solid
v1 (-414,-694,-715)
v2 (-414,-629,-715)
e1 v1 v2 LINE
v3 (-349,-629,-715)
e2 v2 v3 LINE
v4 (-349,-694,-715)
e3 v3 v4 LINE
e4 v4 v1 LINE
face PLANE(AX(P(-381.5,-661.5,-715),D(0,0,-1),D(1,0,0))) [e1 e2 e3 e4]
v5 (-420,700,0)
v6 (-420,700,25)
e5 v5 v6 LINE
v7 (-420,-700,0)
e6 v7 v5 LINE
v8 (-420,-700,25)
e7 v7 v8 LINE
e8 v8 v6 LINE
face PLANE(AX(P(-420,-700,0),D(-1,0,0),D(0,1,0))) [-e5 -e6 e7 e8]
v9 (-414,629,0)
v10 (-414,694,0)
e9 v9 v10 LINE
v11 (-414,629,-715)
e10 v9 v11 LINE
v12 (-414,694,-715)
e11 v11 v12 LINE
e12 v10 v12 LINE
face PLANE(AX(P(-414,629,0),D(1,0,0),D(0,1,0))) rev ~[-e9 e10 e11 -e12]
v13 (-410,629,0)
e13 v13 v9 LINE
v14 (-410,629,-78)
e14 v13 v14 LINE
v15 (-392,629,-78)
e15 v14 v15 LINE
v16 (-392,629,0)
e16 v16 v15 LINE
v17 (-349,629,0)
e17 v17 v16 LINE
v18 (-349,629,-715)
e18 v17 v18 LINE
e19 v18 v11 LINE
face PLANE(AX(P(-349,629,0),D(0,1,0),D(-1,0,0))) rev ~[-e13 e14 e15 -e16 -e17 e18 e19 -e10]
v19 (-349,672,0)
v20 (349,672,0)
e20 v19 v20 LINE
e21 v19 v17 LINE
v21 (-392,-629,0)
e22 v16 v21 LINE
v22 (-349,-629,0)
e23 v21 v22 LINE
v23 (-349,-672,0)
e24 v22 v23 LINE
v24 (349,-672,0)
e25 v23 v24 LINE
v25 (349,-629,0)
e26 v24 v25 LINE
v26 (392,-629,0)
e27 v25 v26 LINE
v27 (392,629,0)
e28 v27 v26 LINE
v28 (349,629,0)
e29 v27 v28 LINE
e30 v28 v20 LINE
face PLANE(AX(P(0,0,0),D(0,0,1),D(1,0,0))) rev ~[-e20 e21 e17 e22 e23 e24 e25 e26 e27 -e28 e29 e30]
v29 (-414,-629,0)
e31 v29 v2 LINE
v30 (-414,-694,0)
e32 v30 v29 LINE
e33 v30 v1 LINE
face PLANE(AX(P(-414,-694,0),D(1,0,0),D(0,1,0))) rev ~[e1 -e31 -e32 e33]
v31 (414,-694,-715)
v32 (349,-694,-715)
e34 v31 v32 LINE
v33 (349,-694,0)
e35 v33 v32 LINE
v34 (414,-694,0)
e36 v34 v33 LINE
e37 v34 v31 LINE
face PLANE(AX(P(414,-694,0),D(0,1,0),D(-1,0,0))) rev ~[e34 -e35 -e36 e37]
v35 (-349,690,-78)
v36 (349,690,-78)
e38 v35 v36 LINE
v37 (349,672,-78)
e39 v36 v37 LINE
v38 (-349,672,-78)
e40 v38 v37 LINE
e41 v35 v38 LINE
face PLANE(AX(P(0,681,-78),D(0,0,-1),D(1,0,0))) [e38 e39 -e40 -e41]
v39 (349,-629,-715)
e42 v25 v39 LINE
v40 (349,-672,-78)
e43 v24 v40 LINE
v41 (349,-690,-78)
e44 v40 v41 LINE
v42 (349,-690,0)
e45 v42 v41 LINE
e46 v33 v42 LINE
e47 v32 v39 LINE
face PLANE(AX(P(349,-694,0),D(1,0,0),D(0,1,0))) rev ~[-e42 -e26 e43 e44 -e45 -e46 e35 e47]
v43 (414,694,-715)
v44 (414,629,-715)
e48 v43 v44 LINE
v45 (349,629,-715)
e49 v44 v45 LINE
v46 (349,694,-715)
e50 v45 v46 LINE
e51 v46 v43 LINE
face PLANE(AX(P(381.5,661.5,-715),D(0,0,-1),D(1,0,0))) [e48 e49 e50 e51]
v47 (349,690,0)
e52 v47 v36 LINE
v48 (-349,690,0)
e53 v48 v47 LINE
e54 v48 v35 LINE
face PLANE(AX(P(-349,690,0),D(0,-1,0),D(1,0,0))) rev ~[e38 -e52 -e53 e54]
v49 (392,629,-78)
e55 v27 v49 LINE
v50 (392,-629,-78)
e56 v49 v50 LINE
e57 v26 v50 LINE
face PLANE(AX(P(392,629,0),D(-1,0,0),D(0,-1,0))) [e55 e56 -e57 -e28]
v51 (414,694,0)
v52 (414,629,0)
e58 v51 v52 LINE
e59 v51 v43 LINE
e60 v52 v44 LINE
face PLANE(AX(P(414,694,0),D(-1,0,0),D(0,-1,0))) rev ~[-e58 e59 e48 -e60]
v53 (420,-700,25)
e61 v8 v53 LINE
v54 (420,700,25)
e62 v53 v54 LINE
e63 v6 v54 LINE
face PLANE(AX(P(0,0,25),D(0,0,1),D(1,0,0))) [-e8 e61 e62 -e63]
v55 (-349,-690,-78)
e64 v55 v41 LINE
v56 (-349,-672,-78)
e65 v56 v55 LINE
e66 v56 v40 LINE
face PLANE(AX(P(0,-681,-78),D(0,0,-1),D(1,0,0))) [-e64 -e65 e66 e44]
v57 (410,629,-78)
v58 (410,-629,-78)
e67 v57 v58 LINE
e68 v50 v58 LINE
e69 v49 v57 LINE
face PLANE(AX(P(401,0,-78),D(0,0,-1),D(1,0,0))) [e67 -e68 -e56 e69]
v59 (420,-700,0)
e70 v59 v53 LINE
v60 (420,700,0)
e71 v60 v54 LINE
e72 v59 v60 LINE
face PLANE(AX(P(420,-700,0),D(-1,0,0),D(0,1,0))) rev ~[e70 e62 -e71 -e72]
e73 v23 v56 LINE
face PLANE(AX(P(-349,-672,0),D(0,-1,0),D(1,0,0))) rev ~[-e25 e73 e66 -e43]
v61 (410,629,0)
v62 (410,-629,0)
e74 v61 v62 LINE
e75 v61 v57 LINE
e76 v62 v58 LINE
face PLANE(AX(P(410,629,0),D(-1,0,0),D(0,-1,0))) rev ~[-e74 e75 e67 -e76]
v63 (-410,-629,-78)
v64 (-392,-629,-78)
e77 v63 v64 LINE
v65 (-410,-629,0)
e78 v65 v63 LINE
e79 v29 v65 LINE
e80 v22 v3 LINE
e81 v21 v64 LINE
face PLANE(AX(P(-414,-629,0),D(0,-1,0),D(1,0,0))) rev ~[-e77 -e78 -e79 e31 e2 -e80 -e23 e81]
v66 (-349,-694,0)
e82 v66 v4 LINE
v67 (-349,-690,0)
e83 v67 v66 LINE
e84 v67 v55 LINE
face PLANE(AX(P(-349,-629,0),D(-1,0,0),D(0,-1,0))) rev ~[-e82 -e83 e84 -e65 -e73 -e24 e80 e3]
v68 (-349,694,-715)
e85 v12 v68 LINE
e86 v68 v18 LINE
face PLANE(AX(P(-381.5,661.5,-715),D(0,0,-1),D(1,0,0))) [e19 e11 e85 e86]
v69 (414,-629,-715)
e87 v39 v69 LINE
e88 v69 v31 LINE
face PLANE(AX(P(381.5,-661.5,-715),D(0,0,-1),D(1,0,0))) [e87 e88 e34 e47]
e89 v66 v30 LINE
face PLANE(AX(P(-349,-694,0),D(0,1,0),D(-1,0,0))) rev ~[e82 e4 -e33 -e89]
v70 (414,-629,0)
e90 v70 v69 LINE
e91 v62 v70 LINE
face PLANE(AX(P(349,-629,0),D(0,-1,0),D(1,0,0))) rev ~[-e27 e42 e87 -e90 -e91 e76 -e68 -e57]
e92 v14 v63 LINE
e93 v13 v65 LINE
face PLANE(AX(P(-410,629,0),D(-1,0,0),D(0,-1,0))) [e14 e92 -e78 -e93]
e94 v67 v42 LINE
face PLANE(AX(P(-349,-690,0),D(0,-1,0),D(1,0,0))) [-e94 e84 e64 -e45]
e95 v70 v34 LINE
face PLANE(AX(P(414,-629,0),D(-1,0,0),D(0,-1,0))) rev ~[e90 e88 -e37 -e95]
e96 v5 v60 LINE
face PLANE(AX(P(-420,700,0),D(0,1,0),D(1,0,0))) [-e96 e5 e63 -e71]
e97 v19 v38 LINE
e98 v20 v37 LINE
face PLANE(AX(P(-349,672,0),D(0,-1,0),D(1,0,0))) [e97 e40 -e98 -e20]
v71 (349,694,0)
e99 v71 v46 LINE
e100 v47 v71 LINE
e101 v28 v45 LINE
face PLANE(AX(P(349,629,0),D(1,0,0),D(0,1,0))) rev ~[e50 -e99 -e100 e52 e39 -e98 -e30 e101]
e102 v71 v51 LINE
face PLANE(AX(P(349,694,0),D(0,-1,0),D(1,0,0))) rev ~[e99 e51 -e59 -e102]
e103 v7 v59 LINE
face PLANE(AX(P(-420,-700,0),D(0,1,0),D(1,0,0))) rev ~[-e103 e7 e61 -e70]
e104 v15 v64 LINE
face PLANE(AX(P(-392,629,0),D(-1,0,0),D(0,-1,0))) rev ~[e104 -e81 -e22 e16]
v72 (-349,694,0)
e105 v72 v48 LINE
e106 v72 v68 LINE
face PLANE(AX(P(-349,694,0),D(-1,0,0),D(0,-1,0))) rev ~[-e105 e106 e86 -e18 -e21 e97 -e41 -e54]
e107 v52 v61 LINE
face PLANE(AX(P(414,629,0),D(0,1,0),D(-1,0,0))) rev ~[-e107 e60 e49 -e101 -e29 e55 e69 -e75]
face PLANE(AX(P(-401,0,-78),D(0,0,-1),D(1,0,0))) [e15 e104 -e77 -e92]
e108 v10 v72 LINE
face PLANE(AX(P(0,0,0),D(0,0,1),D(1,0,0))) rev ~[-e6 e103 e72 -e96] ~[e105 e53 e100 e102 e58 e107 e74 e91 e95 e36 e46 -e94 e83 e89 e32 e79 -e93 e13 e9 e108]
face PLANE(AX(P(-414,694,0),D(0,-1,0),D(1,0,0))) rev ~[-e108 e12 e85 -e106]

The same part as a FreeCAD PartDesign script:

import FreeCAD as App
import Part
import Sketcher

V = App.Vector


def add_polygon(sketch, points):
    """Adds a closed chain of lines whose ends are joined by coincident constraints."""
    first, n = sketch.GeometryCount, len(points)
    for a, b in zip(points, points[1:] + points[:1]):
        sketch.addGeometry(Part.LineSegment(App.Vector(*a, 0), App.Vector(*b, 0)), False)
    for i in range(n):
        sketch.addConstraint(Sketcher.Constraint("Coincident", first + i, 2, first + (i + 1) % n, 1))

doc = App.newDocument("Part")
body = doc.addObject("PartDesign::Body", "Body")

# Sketch on XY plane
sketch1 = body.newObject("Sketcher::SketchObject", "Sketch")
sketch1.AttachmentSupport = (doc.getObject("XY_Plane"), [""])
sketch1.MapMode = "FlatFace"
add_polygon(sketch1, [(-420, 700), (-420, -700), (420, -700), (420, 700)])  # lines 0-3
sketch1.addConstraint([
    Sketcher.Constraint("Vertical", 0),
    Sketcher.Constraint("Horizontal", 1),
    Sketcher.Constraint("Vertical", 2),
    Sketcher.Constraint("Horizontal", 3),
    Sketcher.Constraint("Symmetric", 0, 2, 2, 2, -1, 1),
    Sketcher.Constraint("DistanceX", 1, 1, 1, 2, 840.0),
    Sketcher.Constraint("DistanceY", 0, 2, 0, 1, 1400.0),
])
pad1 = body.newObject("PartDesign::Pad", "Pad")
pad1.Profile = sketch1
pad1.Length = 25

# Sketch on XY plane
sketch2 = body.newObject("Sketcher::SketchObject", "Sketch001")
sketch2.AttachmentSupport = (doc.getObject("XY_Plane"), [""])
sketch2.MapMode = "FlatFace"
add_polygon(sketch2, [(349, -629), (414, -629), (414, -694), (349, -694)])  # lines 0-3
add_polygon(sketch2, [(349, 629), (349, 694), (414, 694), (414, 629)])  # lines 4-7
add_polygon(sketch2, [(-349, 629), (-414, 629), (-414, 694), (-349, 694)])  # lines 8-11
add_polygon(sketch2, [(-349, -629), (-349, -694), (-414, -694), (-414, -629)])  # lines 12-15
sketch2.addConstraint([
    Sketcher.Constraint("Horizontal", 0),
    Sketcher.Constraint("Vertical", 1),
    Sketcher.Constraint("Horizontal", 2),
    Sketcher.Constraint("Vertical", 3),
    Sketcher.Constraint("Vertical", 4),
    Sketcher.Constraint("Horizontal", 5),
    Sketcher.Constraint("Vertical", 6),
    Sketcher.Constraint("Horizontal", 7),
    Sketcher.Constraint("Horizontal", 8),
    Sketcher.Constraint("Vertical", 9),
    Sketcher.Constraint("Horizontal", 10),
    Sketcher.Constraint("Vertical", 11),
    Sketcher.Constraint("Vertical", 12),
    Sketcher.Constraint("Horizontal", 13),
    Sketcher.Constraint("Vertical", 14),
    Sketcher.Constraint("Horizontal", 15),
    Sketcher.Constraint("Symmetric", 0, 2, 8, 2, -1, 1),
    Sketcher.Constraint("Symmetric", 2, 2, 10, 2, -1, 1),
    Sketcher.Constraint("Symmetric", 4, 2, 12, 2, -1, 1),
    Sketcher.Constraint("Symmetric", 6, 2, 14, 2, -1, 1),
    Sketcher.Constraint("Symmetric", 6, 2, 8, 2, -2),
    Sketcher.Constraint("Symmetric", 4, 2, 10, 2, -2),
    Sketcher.Constraint("Equal", 15, 1),
    Sketcher.Constraint("DistanceX", 0, 1, 0, 2, 65.0),
    Sketcher.Constraint("DistanceX", -1, 1, 0, 2, 414.0),
    Sketcher.Constraint("DistanceY", 0, 2, -1, 1, 629.0),
])
pad2 = body.newObject("PartDesign::Pad", "Pad001")
pad2.Profile = sketch2
pad2.Length = 715
pad2.Reversed = True

# Sketch on XY plane
sketch3 = body.newObject("Sketcher::SketchObject", "Sketch002")
sketch3.AttachmentSupport = (doc.getObject("XY_Plane"), [""])
sketch3.MapMode = "FlatFace"
add_polygon(sketch3, [(392, -629), (392, 629), (410, 629), (410, -629)])  # lines 0-3
add_polygon(sketch3, [(-349, -690), (-349, -672), (349, -672), (349, -690)])  # lines 4-7
add_polygon(sketch3, [(-410, -629), (-410, 629), (-392, 629), (-392, -629)])  # lines 8-11
add_polygon(sketch3, [(-349, 672), (-349, 690), (349, 690), (349, 672)])  # lines 12-15
sketch3.addConstraint([
    Sketcher.Constraint("Vertical", 0),
    Sketcher.Constraint("Horizontal", 1),
    Sketcher.Constraint("Vertical", 2),
    Sketcher.Constraint("Horizontal", 3),
    Sketcher.Constraint("Vertical", 4),
    Sketcher.Constraint("Horizontal", 5),
    Sketcher.Constraint("Vertical", 6),
    Sketcher.Constraint("Horizontal", 7),
    Sketcher.Constraint("Vertical", 8),
    Sketcher.Constraint("Horizontal", 9),
    Sketcher.Constraint("Vertical", 10),
    Sketcher.Constraint("Horizontal", 11),
    Sketcher.Constraint("Vertical", 12),
    Sketcher.Constraint("Horizontal", 13),
    Sketcher.Constraint("Vertical", 14),
    Sketcher.Constraint("Horizontal", 15),
    Sketcher.Constraint("Symmetric", 2, 2, 8, 2, -1, 1),
    Sketcher.Constraint("Symmetric", 0, 2, 10, 2, -1, 1),
    Sketcher.Constraint("Symmetric", 6, 2, 12, 2, -1, 1),
    Sketcher.Constraint("Symmetric", 4, 2, 14, 2, -1, 1),
    Sketcher.Constraint("Horizontal", 1, 2, 8, 2),
    Sketcher.Constraint("Vertical", 7, 2, 12, 2),
    Sketcher.Constraint("Equal", 11, 4),
    Sketcher.Constraint("DistanceX", 1, 1, 1, 2, 18.0),
    Sketcher.Constraint("DistanceX", 5, 1, 5, 2, 698.0),
    Sketcher.Constraint("DistanceY", 0, 1, 0, 2, 1258.0),
    Sketcher.Constraint("DistanceX", -1, 1, 0, 2, 392.0),
    Sketcher.Constraint("DistanceY", 4, 2, -1, 1, 672.0),
])
pad3 = body.newObject("PartDesign::Pad", "Pad002")
pad3.Profile = sketch3
pad3.Length = 78
pad3.Reversed = True

doc.recompute()
